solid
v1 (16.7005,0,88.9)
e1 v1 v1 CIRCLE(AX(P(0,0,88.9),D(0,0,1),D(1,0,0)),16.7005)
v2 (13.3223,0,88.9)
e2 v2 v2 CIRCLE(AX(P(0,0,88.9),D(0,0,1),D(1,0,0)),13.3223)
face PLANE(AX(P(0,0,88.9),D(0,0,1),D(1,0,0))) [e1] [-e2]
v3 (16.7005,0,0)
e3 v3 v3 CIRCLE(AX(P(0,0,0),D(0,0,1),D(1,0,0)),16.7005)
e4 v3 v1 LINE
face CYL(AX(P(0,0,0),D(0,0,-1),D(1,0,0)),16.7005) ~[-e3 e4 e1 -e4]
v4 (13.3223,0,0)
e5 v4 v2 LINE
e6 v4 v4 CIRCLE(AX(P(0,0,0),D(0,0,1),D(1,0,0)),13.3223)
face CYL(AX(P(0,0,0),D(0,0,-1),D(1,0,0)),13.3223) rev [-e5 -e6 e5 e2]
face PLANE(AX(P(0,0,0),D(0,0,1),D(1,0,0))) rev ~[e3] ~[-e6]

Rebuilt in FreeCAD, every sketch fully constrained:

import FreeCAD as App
import Part
import Sketcher

V = App.Vector
Q = App.Units.Quantity

doc = App.newDocument("Part")
body = doc.addObject("PartDesign::Body", "Body")

# Sketch on XY plane
sketch1 = body.newObject("Sketcher::SketchObject", "Sketch")
sketch1.AttachmentSupport = (doc.getObject("XY_Plane"), [""])
sketch1.MapMode = "FlatFace"
sketch1.addGeometry(Part.Circle(V(0, 0, 0), V(0, 0, 1), 17), False)
sketch1.addGeometry(Part.Circle(V(0, 0, 0), V(0, 0, 1), 13), False)
sketch1.addConstraint(Sketcher.Constraint("Coincident", 0, 3, -1, 1))
sketch1.addConstraint(Sketcher.Constraint("Coincident", 1, 3, -1, 1))
sketch1.addConstraint(Sketcher.Constraint("Diameter", 0, Q("1.315 in")))
sketch1.addConstraint(Sketcher.Constraint("Diameter", 1, Q("1.049 in")))
pad1 = body.newObject("PartDesign::Pad", "Pad")
pad1.Profile = sketch1
pad1.Length = Q("3.5 in")

doc.recompute()
